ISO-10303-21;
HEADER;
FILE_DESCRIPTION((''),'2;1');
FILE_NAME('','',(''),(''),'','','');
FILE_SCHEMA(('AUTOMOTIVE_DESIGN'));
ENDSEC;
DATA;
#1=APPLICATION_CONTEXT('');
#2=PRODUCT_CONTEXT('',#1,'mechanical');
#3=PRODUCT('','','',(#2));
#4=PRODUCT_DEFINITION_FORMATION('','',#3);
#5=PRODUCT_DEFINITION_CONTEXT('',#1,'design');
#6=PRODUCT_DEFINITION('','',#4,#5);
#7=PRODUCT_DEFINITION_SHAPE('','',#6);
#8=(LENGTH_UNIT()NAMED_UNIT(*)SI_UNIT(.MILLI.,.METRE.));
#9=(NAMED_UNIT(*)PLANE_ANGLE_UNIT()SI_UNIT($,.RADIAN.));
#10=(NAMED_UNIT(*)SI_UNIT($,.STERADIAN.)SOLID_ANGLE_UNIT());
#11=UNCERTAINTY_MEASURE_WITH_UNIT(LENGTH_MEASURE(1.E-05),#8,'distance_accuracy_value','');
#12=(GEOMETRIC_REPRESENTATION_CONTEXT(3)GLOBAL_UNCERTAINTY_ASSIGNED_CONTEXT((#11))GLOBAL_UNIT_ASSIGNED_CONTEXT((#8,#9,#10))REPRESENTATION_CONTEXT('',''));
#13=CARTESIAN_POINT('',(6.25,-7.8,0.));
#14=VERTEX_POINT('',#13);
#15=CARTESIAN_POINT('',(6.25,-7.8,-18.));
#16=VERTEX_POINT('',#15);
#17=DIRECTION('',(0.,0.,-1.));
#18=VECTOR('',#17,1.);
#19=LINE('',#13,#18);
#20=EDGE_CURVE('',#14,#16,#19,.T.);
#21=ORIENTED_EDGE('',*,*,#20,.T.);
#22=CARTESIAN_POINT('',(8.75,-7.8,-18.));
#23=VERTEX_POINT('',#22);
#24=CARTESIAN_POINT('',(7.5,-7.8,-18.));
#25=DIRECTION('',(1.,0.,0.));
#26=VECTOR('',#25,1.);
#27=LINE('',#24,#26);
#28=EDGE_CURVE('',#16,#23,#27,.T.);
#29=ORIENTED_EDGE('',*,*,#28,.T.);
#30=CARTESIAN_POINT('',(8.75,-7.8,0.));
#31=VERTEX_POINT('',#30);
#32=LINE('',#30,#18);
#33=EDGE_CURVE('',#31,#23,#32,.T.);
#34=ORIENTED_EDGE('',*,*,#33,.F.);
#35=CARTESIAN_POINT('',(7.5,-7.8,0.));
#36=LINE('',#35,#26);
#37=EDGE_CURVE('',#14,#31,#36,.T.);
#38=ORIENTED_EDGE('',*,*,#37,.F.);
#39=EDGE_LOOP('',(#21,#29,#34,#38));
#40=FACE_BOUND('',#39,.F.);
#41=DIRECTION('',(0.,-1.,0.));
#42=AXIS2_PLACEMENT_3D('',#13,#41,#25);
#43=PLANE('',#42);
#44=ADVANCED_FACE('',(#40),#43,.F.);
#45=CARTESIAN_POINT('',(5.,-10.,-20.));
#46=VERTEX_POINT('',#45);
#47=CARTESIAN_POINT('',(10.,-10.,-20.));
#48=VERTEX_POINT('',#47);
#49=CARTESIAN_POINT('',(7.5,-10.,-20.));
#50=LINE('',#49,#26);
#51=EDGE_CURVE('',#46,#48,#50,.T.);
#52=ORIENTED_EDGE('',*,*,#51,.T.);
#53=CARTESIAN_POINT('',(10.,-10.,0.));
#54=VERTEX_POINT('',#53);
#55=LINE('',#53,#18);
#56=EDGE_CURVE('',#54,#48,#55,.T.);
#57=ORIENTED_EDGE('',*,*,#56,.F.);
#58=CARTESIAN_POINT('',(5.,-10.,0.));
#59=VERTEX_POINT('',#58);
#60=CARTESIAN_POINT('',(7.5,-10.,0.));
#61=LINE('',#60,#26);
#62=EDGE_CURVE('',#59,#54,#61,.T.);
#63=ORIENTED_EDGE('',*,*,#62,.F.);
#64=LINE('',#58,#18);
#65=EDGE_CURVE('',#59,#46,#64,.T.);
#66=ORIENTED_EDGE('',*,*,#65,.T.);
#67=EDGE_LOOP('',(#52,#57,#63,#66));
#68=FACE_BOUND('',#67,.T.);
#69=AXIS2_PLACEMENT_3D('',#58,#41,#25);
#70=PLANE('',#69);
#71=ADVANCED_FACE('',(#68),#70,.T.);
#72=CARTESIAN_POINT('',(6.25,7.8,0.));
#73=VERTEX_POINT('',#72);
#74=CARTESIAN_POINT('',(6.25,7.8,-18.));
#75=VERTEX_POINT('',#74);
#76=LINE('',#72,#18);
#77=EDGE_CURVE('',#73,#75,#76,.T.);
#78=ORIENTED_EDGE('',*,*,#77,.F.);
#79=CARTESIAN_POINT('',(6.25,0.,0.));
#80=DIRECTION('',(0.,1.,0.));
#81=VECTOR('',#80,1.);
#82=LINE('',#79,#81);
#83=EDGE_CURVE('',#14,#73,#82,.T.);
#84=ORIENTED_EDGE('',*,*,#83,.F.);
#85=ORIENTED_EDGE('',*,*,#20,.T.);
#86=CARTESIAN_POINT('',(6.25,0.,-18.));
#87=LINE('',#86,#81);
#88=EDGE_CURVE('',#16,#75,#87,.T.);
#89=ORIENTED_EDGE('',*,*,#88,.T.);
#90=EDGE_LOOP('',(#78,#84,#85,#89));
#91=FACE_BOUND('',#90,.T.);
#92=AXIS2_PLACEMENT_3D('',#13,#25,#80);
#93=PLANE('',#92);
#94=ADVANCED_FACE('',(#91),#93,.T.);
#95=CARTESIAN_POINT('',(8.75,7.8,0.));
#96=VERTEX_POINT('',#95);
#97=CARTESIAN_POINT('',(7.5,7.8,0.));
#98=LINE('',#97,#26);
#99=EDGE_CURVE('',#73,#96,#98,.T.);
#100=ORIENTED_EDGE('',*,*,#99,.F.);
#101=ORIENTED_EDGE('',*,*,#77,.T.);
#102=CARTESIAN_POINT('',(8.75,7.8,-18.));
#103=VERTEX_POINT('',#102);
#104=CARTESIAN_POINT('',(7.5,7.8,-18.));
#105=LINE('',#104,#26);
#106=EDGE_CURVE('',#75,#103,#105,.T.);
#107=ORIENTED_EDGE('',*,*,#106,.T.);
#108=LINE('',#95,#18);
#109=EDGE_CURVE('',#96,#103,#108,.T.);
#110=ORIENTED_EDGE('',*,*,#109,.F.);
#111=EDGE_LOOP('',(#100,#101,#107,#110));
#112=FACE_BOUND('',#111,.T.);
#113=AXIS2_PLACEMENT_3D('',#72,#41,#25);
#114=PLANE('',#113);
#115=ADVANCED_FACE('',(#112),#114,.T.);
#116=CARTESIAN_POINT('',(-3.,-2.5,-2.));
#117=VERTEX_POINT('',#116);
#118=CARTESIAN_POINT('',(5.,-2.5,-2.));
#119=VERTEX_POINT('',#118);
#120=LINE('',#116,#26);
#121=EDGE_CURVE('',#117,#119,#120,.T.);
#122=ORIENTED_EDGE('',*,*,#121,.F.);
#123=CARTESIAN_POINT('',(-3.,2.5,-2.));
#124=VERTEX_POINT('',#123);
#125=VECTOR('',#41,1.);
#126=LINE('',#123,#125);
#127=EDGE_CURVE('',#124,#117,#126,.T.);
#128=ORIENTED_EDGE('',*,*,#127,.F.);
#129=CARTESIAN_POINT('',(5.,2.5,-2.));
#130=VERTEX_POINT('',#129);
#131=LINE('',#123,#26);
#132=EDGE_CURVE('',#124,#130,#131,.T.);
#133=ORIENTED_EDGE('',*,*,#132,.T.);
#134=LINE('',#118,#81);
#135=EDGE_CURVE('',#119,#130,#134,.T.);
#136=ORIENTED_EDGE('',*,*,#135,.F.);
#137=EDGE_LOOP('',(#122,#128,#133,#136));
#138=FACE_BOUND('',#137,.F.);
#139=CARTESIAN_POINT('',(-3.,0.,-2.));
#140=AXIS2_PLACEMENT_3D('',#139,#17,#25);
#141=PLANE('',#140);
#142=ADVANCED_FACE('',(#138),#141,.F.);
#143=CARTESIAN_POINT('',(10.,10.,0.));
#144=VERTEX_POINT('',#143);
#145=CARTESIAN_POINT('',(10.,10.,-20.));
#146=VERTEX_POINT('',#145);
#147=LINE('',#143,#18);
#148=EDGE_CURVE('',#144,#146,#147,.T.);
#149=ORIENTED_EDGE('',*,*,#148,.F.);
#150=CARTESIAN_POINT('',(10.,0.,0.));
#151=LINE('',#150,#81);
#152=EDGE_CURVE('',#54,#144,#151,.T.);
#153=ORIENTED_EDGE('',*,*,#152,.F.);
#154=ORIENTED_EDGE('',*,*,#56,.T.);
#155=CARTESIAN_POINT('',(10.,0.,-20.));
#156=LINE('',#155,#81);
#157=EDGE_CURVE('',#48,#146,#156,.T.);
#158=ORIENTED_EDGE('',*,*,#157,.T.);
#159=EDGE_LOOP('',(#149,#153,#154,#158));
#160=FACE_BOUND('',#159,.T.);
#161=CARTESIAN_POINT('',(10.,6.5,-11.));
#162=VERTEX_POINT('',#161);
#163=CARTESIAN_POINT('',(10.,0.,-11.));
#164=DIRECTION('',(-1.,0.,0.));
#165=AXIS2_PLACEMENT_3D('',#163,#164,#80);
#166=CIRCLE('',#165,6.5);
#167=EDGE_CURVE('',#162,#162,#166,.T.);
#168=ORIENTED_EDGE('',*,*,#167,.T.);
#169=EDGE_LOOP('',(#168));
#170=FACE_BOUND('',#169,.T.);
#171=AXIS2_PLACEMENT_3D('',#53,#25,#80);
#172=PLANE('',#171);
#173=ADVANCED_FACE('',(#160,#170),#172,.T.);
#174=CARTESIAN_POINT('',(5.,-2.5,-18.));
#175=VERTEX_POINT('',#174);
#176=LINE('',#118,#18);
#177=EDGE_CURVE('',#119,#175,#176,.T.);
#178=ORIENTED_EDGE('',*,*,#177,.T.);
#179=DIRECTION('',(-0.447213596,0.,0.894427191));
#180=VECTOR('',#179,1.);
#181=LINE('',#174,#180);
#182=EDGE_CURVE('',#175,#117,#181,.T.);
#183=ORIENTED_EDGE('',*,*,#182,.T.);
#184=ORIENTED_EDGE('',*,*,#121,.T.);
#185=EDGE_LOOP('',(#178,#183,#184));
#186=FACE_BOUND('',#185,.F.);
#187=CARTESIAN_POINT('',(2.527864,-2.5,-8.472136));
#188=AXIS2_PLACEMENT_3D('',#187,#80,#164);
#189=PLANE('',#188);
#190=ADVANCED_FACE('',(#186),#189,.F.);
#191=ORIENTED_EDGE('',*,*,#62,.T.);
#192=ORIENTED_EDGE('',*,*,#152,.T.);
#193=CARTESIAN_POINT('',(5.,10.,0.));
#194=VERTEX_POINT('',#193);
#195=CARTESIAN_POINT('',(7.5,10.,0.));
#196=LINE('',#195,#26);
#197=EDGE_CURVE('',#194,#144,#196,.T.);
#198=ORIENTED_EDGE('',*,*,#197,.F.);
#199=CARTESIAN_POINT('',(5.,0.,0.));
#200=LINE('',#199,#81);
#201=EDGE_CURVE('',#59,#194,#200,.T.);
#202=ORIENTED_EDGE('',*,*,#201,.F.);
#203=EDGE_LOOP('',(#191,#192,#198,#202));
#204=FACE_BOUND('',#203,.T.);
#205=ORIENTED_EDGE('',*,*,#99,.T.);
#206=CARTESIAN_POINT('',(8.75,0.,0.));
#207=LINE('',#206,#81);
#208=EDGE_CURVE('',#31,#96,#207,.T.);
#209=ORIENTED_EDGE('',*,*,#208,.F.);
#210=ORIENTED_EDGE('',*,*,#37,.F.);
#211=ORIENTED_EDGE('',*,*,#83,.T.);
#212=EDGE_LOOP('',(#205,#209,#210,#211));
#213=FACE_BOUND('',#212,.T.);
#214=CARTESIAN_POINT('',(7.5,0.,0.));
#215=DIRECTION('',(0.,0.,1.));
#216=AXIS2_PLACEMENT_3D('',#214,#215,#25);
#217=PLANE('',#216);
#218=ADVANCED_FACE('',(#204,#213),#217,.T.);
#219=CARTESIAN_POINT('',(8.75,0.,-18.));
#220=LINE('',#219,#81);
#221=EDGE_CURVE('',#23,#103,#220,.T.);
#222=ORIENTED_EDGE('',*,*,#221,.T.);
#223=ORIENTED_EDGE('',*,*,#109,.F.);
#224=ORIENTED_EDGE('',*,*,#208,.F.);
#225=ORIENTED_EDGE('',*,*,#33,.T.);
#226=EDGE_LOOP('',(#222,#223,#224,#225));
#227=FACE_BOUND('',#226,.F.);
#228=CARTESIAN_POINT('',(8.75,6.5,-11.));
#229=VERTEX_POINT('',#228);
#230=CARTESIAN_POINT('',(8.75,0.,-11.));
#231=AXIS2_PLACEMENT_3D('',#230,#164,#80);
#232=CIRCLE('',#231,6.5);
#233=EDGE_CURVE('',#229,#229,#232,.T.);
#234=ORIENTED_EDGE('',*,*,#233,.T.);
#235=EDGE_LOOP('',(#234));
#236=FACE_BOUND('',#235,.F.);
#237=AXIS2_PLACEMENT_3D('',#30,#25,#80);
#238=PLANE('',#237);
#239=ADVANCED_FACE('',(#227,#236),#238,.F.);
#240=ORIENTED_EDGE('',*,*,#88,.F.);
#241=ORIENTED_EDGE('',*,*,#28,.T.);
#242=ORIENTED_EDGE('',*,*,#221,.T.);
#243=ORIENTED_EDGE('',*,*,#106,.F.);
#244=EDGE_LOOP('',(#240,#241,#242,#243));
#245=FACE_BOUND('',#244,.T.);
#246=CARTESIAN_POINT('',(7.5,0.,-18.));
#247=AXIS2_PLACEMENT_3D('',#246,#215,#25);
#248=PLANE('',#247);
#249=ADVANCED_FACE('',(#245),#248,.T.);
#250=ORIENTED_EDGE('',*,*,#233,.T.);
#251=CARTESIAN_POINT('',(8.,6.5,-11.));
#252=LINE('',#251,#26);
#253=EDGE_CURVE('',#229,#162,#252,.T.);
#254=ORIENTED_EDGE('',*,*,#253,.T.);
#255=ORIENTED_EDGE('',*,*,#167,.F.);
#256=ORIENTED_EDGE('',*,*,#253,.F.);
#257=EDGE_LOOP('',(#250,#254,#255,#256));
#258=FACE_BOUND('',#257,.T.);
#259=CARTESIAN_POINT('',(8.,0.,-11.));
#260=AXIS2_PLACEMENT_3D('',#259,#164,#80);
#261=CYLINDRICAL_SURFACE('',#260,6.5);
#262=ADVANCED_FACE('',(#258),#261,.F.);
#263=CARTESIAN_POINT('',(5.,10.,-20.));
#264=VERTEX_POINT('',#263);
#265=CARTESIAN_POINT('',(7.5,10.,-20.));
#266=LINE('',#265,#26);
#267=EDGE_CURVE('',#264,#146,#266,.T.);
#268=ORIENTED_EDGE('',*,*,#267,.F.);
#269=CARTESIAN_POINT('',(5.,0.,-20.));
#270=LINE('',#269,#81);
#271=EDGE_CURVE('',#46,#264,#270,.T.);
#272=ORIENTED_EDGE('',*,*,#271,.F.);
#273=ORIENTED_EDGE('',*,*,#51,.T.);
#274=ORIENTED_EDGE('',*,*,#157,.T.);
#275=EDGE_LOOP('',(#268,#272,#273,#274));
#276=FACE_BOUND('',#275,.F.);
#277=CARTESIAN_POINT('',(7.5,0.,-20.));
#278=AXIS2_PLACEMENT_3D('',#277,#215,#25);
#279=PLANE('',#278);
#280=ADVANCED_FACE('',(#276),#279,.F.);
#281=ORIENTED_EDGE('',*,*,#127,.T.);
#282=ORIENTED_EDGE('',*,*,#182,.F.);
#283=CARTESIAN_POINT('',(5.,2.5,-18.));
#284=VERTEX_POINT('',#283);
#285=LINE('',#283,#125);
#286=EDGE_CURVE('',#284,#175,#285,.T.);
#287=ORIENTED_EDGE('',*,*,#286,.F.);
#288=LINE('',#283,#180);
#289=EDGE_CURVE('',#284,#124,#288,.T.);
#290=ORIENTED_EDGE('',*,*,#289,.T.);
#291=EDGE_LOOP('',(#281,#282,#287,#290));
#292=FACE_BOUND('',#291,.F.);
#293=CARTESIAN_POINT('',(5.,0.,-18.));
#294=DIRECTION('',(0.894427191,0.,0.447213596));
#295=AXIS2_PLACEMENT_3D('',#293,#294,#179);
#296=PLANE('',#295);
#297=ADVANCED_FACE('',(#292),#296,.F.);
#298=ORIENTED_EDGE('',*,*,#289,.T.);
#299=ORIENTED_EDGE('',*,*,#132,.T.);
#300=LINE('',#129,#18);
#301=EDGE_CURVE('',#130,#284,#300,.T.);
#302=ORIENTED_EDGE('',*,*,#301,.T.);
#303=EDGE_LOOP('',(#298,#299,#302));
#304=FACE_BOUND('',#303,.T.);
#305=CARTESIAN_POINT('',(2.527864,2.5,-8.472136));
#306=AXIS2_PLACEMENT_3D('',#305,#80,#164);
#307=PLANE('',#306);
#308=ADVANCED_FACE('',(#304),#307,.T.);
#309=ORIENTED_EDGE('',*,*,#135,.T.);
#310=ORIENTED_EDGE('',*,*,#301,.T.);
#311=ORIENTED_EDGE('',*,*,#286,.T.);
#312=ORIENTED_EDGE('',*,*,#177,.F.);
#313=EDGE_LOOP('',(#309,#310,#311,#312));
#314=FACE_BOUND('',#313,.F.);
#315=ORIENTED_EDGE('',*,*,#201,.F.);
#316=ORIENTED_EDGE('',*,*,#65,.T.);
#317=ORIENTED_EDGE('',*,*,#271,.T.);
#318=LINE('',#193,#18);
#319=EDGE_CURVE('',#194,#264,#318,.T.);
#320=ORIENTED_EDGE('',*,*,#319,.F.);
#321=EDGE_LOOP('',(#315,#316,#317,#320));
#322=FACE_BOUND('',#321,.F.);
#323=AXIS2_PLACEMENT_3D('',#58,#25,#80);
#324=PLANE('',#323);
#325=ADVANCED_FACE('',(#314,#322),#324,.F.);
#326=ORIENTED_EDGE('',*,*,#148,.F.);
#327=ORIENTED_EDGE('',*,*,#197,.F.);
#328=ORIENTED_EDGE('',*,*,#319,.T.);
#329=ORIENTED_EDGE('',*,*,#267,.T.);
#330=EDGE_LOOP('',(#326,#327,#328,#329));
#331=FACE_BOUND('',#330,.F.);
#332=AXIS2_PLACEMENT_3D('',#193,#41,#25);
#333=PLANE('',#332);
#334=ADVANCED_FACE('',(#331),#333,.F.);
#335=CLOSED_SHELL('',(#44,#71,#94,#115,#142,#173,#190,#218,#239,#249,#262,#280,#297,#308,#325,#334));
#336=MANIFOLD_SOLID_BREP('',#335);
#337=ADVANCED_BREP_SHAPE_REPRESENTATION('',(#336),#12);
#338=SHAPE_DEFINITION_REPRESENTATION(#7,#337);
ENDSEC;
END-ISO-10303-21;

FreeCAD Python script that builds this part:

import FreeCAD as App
import Part
import Sketcher
from FreeCAD import Vector


def add_polygon(sketch, points):
    """Adds a closed chain of lines whose ends are joined by coincident constraints."""
    first, n = sketch.GeometryCount, len(points)
    for a, b in zip(points, points[1:] + points[:1]):
        sketch.addGeometry(Part.LineSegment(App.Vector(*a, 0), App.Vector(*b, 0)), False)
    for i in range(n):
        sketch.addConstraint(Sketcher.Constraint("Coincident", first + i, 2, first + (i + 1) % n, 1))

doc = App.newDocument("Part")
body = doc.addObject("PartDesign::Body", "Body")

# Sketch on XY plane
sketch1 = doc.addObject("Sketcher::SketchObject", "Sketch")
body.addObject(sketch1)
sketch1.AttachmentSupport = (doc.XY_Plane, [""])
sketch1.MapMode = "FlatFace"
add_polygon(sketch1, [(0, 10), (0, -10), (5, -10), (5, 10)])  # lines 0-3
sketch1.addConstraint([
    Sketcher.Constraint("Vertical", 0),
    Sketcher.Constraint("Horizontal", 1),
    Sketcher.Constraint("Vertical", 2),
    Sketcher.Constraint("Horizontal", 3),
    Sketcher.Constraint("Symmetric", 0, 2, 3, 2, -1, 1),
    Sketcher.Constraint("DistanceX", 1, 1, 1, 2, 5.0),
    Sketcher.Constraint("DistanceY", 0, 2, 0, 1, 20.0),
])
pad1 = doc.addObject("PartDesign::Pad", "Pad")
body.addObject(pad1)
pad1.Profile = sketch1
pad1.Length = 20
pad1.Reversed = True

# Sketch on XY plane
sketch2 = doc.addObject("Sketcher::SketchObject", "Sketch001")
body.addObject(sketch2)
sketch2.AttachmentSupport = (doc.XY_Plane, [""])
sketch2.MapMode = "FlatFace"
add_polygon(sketch2, [(1.2, 7.8), (1.2, -7.8), (3.8, -7.8), (3.8, 7.8)])  # lines 0-3
sketch2.addConstraint([
    Sketcher.Constraint("Vertical", 0),
    Sketcher.Constraint("Horizontal", 1),
    Sketcher.Constraint("Vertical", 2),
    Sketcher.Constraint("Horizontal", 3),
    Sketcher.Constraint("DistanceX", 1, 1, 1, 2, 2.5),
    Sketcher.Constraint("DistanceY", 0, 2, 0, 1, 15.6),
    Sketcher.Constraint("DistanceY", 0, 2, -1, 1, 7.8),
    Sketcher.Constraint("DistanceX", -1, 1, 0, 2, 1.25),
])
pocket1 = doc.addObject("PartDesign::Pocket", "Pocket")
body.addObject(pocket1)
pocket1.Profile = sketch2
pocket1.Length = 18

# Sketch on YZ plane
sketch3 = doc.addObject("Sketcher::SketchObject", "Sketch002")
body.addObject(sketch3)
sketch3.AttachmentSupport = (doc.YZ_Plane, [""])
sketch3.MapMode = "FlatFace"
sketch3.AttachmentOffset = App.Placement(Vector(0, 0, 3), App.Rotation())
sketch3.addGeometry(Part.Circle(Vector(0, -11, 0), Vector(0, 0, 1), 6), False)
sketch3.addConstraint([
    Sketcher.Constraint("PointOnObject", 0, 3, -2),
    Sketcher.Constraint("Diameter", 0, 13.0),
    Sketcher.Constraint("DistanceY", 0, 3, -1, 1, 11.0),
])
pocket2 = doc.addObject("PartDesign::Pocket", "Pocket001")
body.addObject(pocket2)
pocket2.Profile = sketch3
pocket2.Length = 3
pocket2.Reversed = True

# Sketch on XZ plane
sketch4 = doc.addObject("Sketcher::SketchObject", "Sketch003")
body.addObject(sketch4)
sketch4.AttachmentSupport = (doc.XZ_Plane, [""])
sketch4.MapMode = "FlatFace"
add_polygon(sketch4, [(0, -2), (-8, -2), (0, -18)])  # lines 0-2
sketch4.addConstraint([
    Sketcher.Constraint("Horizontal", 0),
    Sketcher.Constraint("Vertical", 2),
    Sketcher.Constraint("PointOnObject", 1, 2, -2),
    Sketcher.Constraint("DistanceX", 0, 2, 0, 1, 8.0),
    Sketcher.Constraint("DistanceY", 2, 1, 2, 2, 16.0),
    Sketcher.Constraint("DistanceY", 0, 2, -1, 1, 2.0),
])
pad2 = doc.addObject("PartDesign::Pad", "Pad001")
body.addObject(pad2)
pad2.Profile = sketch4
pad2.Length = 5
pad2.Midplane = True
body2 = doc.addObject("PartDesign::Body", "Body001")
doc.recompute()

body.Placement = App.Placement(Vector(5, 0, 0), App.Rotation(Vector(0, 0, 1), 0))
boolean = doc.addObject("PartDesign::Boolean", "Boolean")
body2.addObject(boolean)
boolean.Type = "Fuse"
boolean.addObjects([body])

doc.recompute()
